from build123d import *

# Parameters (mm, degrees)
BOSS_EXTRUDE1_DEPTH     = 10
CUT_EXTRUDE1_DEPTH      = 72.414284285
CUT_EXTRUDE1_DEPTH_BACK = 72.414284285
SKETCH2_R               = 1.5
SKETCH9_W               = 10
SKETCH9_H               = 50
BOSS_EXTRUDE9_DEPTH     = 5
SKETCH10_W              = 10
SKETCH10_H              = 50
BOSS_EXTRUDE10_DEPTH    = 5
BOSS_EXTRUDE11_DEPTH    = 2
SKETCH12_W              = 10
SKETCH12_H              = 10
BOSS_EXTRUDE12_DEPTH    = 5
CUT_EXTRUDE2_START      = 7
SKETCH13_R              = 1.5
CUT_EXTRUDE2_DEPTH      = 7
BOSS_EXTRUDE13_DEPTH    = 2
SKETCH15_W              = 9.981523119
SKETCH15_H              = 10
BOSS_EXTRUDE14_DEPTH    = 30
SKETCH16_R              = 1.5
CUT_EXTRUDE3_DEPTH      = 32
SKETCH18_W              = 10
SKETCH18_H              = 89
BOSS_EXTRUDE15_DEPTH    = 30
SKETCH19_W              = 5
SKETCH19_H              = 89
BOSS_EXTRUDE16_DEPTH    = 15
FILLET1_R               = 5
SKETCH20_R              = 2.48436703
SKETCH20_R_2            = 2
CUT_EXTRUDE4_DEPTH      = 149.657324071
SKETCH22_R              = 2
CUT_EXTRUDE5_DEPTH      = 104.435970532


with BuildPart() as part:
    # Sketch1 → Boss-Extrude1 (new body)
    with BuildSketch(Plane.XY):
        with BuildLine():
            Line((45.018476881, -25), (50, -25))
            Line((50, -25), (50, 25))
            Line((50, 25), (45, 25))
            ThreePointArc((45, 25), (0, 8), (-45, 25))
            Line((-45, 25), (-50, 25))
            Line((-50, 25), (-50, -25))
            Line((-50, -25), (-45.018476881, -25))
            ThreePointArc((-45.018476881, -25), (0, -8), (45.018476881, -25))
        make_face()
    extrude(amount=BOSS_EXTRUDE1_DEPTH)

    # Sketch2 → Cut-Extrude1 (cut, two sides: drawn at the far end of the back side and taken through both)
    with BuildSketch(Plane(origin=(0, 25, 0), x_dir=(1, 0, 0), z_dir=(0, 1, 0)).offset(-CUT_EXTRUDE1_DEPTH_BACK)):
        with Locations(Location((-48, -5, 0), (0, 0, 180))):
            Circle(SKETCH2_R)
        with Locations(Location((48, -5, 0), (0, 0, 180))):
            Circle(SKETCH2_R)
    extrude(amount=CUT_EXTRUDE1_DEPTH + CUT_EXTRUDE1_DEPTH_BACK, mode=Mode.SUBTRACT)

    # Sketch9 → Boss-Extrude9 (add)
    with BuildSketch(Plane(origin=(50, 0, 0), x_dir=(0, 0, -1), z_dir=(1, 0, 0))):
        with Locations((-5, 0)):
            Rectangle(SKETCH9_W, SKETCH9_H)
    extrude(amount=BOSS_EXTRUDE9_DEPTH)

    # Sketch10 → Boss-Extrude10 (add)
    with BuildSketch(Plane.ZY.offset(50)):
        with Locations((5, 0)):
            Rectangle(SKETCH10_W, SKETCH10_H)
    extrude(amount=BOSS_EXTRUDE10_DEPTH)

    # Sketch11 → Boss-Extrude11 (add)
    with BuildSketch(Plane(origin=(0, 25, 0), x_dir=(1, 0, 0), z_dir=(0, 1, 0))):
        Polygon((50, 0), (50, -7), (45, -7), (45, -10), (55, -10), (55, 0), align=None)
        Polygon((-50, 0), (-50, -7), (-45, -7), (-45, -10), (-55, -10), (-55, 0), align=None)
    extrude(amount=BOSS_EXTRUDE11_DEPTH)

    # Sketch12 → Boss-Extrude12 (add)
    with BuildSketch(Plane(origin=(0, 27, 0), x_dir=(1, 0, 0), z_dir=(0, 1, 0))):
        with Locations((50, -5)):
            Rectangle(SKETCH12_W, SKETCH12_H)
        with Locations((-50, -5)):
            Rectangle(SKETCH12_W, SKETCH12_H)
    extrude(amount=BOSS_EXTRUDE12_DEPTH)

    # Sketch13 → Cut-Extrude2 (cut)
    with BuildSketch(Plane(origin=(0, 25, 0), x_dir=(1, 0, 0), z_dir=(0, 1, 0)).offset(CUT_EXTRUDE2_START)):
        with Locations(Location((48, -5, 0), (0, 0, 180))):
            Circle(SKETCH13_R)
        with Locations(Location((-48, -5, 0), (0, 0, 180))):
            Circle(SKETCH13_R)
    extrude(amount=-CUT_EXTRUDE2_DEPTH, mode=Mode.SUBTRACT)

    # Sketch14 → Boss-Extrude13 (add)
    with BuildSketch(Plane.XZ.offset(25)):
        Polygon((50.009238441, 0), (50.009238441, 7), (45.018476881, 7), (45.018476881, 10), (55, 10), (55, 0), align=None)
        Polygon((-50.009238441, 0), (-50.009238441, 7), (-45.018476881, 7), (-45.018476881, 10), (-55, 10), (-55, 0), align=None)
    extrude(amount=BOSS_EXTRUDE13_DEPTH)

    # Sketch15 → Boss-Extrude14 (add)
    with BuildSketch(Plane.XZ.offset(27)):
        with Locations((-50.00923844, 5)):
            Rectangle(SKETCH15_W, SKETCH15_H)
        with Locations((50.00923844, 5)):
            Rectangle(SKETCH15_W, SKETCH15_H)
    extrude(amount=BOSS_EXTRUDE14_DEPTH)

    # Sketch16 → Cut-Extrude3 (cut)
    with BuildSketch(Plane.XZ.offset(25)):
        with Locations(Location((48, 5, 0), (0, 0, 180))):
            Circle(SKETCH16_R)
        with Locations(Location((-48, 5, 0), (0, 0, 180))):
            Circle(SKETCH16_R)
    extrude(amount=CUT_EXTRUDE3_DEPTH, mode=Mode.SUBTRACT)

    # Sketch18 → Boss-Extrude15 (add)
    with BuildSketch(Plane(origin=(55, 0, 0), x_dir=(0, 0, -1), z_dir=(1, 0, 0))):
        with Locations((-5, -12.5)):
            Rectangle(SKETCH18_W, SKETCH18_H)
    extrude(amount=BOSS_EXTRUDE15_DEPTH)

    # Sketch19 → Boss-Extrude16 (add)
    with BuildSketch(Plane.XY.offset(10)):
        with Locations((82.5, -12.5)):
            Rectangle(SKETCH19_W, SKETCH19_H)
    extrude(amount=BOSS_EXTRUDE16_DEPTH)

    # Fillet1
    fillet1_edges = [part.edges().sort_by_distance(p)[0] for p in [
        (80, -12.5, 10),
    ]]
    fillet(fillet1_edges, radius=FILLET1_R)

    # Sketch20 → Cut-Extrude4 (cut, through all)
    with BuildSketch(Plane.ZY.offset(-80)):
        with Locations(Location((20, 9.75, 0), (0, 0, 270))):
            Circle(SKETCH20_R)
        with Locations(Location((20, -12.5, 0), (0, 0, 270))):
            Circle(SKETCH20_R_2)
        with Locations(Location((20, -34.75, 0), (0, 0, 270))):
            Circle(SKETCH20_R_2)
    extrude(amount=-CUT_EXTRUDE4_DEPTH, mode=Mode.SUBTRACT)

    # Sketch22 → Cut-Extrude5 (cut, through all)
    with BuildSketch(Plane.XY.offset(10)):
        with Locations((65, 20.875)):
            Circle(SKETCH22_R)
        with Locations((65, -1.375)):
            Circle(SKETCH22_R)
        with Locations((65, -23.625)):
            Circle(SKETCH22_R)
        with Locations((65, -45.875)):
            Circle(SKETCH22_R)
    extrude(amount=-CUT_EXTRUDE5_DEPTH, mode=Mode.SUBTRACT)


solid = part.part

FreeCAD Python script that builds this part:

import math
import FreeCAD as App
import Part
import Sketcher
Q = App.Units.Quantity


def edges_at(feature, points):
    """Names of the edges that pass closest to the given points."""
    edges = feature.Shape.Edges
    near = lambda p: min(range(len(edges)), key=lambda i: edges[i].distToShape(Part.Vertex(*p))[0])
    return sorted({f"Edge{near(p) + 1}" for p in points})

doc = App.newDocument("Part")
body = doc.addObject("PartDesign::Body", "Body")

# Sketch on XY plane
sketch1 = doc.addObject("Sketcher::SketchObject", "Sketch")
body.addObject(sketch1)
sketch1.AttachmentSupport = (doc.XY_Plane, [""])
sketch1.MapMode = "FlatFace"
sketch1.addGeometry([
    Part.LineSegment(App.Vector(45, -25, 0), App.Vector(50, -25, 0)),  # 0
    Part.LineSegment(App.Vector(50, -25, 0), App.Vector(50, 25, 0)),  # 1
    Part.LineSegment(App.Vector(50, 25, 0), App.Vector(45, 25, 0)),  # 2
    Part.ArcOfCircle(Part.Circle(App.Vector(0, 76.1, 0), App.Vector(0, 0, 1), 68.1), math.radians(-131), math.radians(-49)),  # 3
    Part.LineSegment(App.Vector(-45, 25, 0), App.Vector(-50, 25, 0)),  # 4
    Part.LineSegment(App.Vector(-50, 25, 0), App.Vector(-50, -25, 0)),  # 5
    Part.LineSegment(App.Vector(-50, -25, 0), App.Vector(-45, -25, 0)),  # 6
    Part.ArcOfCircle(Part.Circle(App.Vector(0, -76.1, 0), App.Vector(0, 0, 1), 68.1), math.radians(49), math.radians(131)),  # 7
], False)
sketch1.addConstraint([
    Sketcher.Constraint("Coincident", 0, 2, 1, 1),
    Sketcher.Constraint("Coincident", 1, 2, 2, 1),
    Sketcher.Constraint("Coincident", 2, 2, 3, 2),
    Sketcher.Constraint("Coincident", 3, 1, 4, 1),
    Sketcher.Constraint("Coincident", 4, 2, 5, 1),
    Sketcher.Constraint("Coincident", 5, 2, 6, 1),
    Sketcher.Constraint("Coincident", 6, 2, 7, 2),
    Sketcher.Constraint("Coincident", 7, 1, 0, 1),
    Sketcher.Constraint("Horizontal", 0),
    Sketcher.Constraint("Vertical", 1),
    Sketcher.Constraint("Horizontal", 2),
    Sketcher.Constraint("Horizontal", 4),
    Sketcher.Constraint("Vertical", 5),
    Sketcher.Constraint("Horizontal", 6),
    Sketcher.Constraint("Symmetric", 0, 2, 4, 2, -1, 1),
    Sketcher.Constraint("Symmetric", 2, 2, 3, 1, -2),
    Sketcher.Constraint("Symmetric", 6, 2, 7, 1, -2),
    Sketcher.Constraint("DistanceX", 2, 2, 2, 1, Q("5 mm")),
    Sketcher.Constraint("DistanceY", 1, 1, 1, 2, Q("50 mm")),
    Sketcher.Constraint("DistanceX", -1, 1, 0, 2, Q("50 mm")),
    Sketcher.Constraint("Radius", 3, Q("68.058824 mm")),
    Sketcher.Constraint("Radius", 7, Q("68.107743 mm")),
    Sketcher.Constraint("DistanceX", 0, 1, 0, 2, Q("4.981523 mm")),
])
pad1 = doc.addObject("PartDesign::Pad", "Pad")
body.addObject(pad1)
pad1.Profile = sketch1
pad1.Length = 10

# Sketch on XZ plane
sketch2 = doc.addObject("Sketcher::SketchObject", "Sketch001")
body.addObject(sketch2)
sketch2.AttachmentSupport = (doc.XZ_Plane, [""])
sketch2.MapMode = "FlatFace"
sketch2.AttachmentOffset = App.Placement(App.Vector(0, 0, -25), App.Rotation())
sketch2.addGeometry([
    Part.Circle(App.Vector(-48, 5, 0), App.Vector(0, 0, 1), 1.5),
    Part.Circle(App.Vector(48, 5, 0), App.Vector(0, 0, 1), 1.5),
], False)
sketch2.addConstraint([
    Sketcher.Constraint("Equal", 0, 1),
    Sketcher.Constraint("Symmetric", 0, 3, 1, 3, -2),
    Sketcher.Constraint("Diameter", 0, Q("3 mm")),
    Sketcher.Constraint("DistanceX", 0, 3, -1, 1, Q("48 mm")),
    Sketcher.Constraint("DistanceY", -1, 1, 0, 3, Q("5 mm")),
])
pocket1 = doc.addObject("PartDesign::Pocket", "Pocket")
body.addObject(pocket1)
pocket1.Profile = sketch2
pocket1.Type = "ThroughAll"
pocket1.Midplane = True

# Sketch on YZ plane
sketch3 = doc.addObject("Sketcher::SketchObject", "Sketch002")
body.addObject(sketch3)
sketch3.AttachmentSupport = (doc.YZ_Plane, [""])
sketch3.MapMode = "FlatFace"
sketch3.AttachmentOffset = App.Placement(App.Vector(0, 0, 50), App.Rotation())
sketch3.addGeometry([
    Part.LineSegment(App.Vector(25, 10, 0), App.Vector(-25, 10, 0)),
    Part.LineSegment(App.Vector(-25, 10, 0), App.Vector(-25, 0, 0)),
    Part.LineSegment(App.Vector(-25, 0, 0), App.Vector(25, 0, 0)),
    Part.LineSegment(App.Vector(25, 0, 0), App.Vector(25, 10, 0)),
], False)
sketch3.addConstraint([
    Sketcher.Constraint("Coincident", 0, 2, 1, 1),
    Sketcher.Constraint("Coincident", 1, 2, 2, 1),
    Sketcher.Constraint("Coincident", 2, 2, 3, 1),
    Sketcher.Constraint("Coincident", 3, 2, 0, 1),
    Sketcher.Constraint("Horizontal", 0),
    Sketcher.Constraint("Vertical", 1),
    Sketcher.Constraint("Horizontal", 2),
    Sketcher.Constraint("Vertical", 3),
    Sketcher.Constraint("Symmetric", 1, 2, 2, 2, -1, 1),
    Sketcher.Constraint("DistanceX", 0, 2, 0, 1, Q("50 mm")),
    Sketcher.Constraint("DistanceY", 1, 2, 1, 1, Q("10 mm")),
])
pad2 = doc.addObject("PartDesign::Pad", "Pad001")
body.addObject(pad2)
pad2.Profile = sketch3
pad2.Length = 5

# Sketch on YZ plane
sketch4 = doc.addObject("Sketcher::SketchObject", "Sketch003")
body.addObject(sketch4)
sketch4.AttachmentSupport = (doc.YZ_Plane, [""])
sketch4.MapMode = "FlatFace"
sketch4.AttachmentOffset = App.Placement(App.Vector(0, 0, -50), App.Rotation())
sketch4.addGeometry([
    Part.LineSegment(App.Vector(25, 0, 0), App.Vector(-25, 0, 0)),
    Part.LineSegment(App.Vector(-25, 0, 0), App.Vector(-25, 10, 0)),
    Part.LineSegment(App.Vector(-25, 10, 0), App.Vector(25, 10, 0)),
    Part.LineSegment(App.Vector(25, 10, 0), App.Vector(25, 0, 0)),
], False)
sketch4.addConstraint([
    Sketcher.Constraint("Coincident", 0, 2, 1, 1),
    Sketcher.Constraint("Coincident", 1, 2, 2, 1),
    Sketcher.Constraint("Coincident", 2, 2, 3, 1),
    Sketcher.Constraint("Coincident", 3, 2, 0, 1),
    Sketcher.Constraint("Horizontal", 0),
    Sketcher.Constraint("Vertical", 1),
    Sketcher.Constraint("Horizontal", 2),
    Sketcher.Constraint("Vertical", 3),
    Sketcher.Constraint("Symmetric", 0, 2, 3, 2, -1, 1),
    Sketcher.Constraint("DistanceX", 0, 2, 0, 1, Q("50 mm")),
    Sketcher.Constraint("DistanceY", 1, 1, 1, 2, Q("10 mm")),
])
pad3 = doc.addObject("PartDesign::Pad", "Pad002")
body.addObject(pad3)
pad3.Profile = sketch4
pad3.Length = 5
pad3.Reversed = True

# Sketch on XZ plane
sketch5 = doc.addObject("Sketcher::SketchObject", "Sketch004")
body.addObject(sketch5)
sketch5.AttachmentSupport = (doc.XZ_Plane, [""])
sketch5.MapMode = "FlatFace"
sketch5.AttachmentOffset = App.Placement(App.Vector(0, 0, -25), App.Rotation())
sketch5.addGeometry([
    Part.LineSegment(App.Vector(50, 0, 0), App.Vector(50, 7, 0)),  # 0
    Part.LineSegment(App.Vector(50, 7, 0), App.Vector(45, 7, 0)),  # 1
    Part.LineSegment(App.Vector(45, 7, 0), App.Vector(45, 10, 0)),  # 2
    Part.LineSegment(App.Vector(45, 10, 0), App.Vector(55, 10, 0)),  # 3
    Part.LineSegment(App.Vector(55, 10, 0), App.Vector(55, 0, 0)),  # 4
    Part.LineSegment(App.Vector(55, 0, 0), App.Vector(50, 0, 0)),  # 5
    Part.LineSegment(App.Vector(-50, 7, 0), App.Vector(-50, 0, 0)),  # 6
    Part.LineSegment(App.Vector(-50, 0, 0), App.Vector(-55, 0, 0)),  # 7
    Part.LineSegment(App.Vector(-55, 0, 0), App.Vector(-55, 10, 0)),  # 8
    Part.LineSegment(App.Vector(-55, 10, 0), App.Vector(-45, 10, 0)),  # 9
    Part.LineSegment(App.Vector(-45, 10, 0), App.Vector(-45, 7, 0)),  # 10
    Part.LineSegment(App.Vector(-45, 7, 0), App.Vector(-50, 7, 0)),  # 11
], False)
sketch5.addConstraint([
    Sketcher.Constraint("Coincident", 0, 2, 1, 1),
    Sketcher.Constraint("Coincident", 1, 2, 2, 1),
    Sketcher.Constraint("Coincident", 2, 2, 3, 1),
    Sketcher.Constraint("Coincident", 3, 2, 4, 1),
    Sketcher.Constraint("Coincident", 4, 2, 5, 1),
    Sketcher.Constraint("Coincident", 5, 2, 0, 1),
    Sketcher.Constraint("Coincident", 6, 2, 7, 1),
    Sketcher.Constraint("Coincident", 7, 2, 8, 1),
    Sketcher.Constraint("Coincident", 8, 2, 9, 1),
    Sketcher.Constraint("Coincident", 9, 2, 10, 1),
    Sketcher.Constraint("Coincident", 10, 2, 11, 1),
    Sketcher.Constraint("Coincident", 11, 2, 6, 1),
    Sketcher.Constraint("Vertical", 0),
    Sketcher.Constraint("Horizontal", 1),
    Sketcher.Constraint("Vertical", 2),
    Sketcher.Constraint("Horizontal", 3),
    Sketcher.Constraint("Vertical", 4),
    Sketcher.Constraint("Horizontal", 5),
    Sketcher.Constraint("Vertical", 6),
    Sketcher.Constraint("Horizontal", 7),
    Sketcher.Constraint("Vertical", 8),
    Sketcher.Constraint("Horizontal", 9),
    Sketcher.Constraint("Vertical", 10),
    Sketcher.Constraint("Horizontal", 11),
    Sketcher.Constraint("Symmetric", 5, 2, 6, 2, -1, 1),
    Sketcher.Constraint("Symmetric", 4, 2, 7, 2, -2),
    Sketcher.Constraint("Symmetric", 2, 2, 9, 2, -2),
    Sketcher.Constraint("Horizontal", 1, 2, 10, 2),
    Sketcher.Constraint("Equal", 1, 5),
    Sketcher.Constraint("Equal", 9, 4),
    Sketcher.Constraint("DistanceX", 1, 2, 1, 1, Q("5 mm")),
    Sketcher.Constraint("DistanceY", 0, 1, 0, 2, Q("7 mm")),
    Sketcher.Constraint("DistanceX", -1, 1, 0, 2, Q("50 mm")),
])
pad4 = doc.addObject("PartDesign::Pad", "Pad003")
body.addObject(pad4)
pad4.Profile = sketch5
pad4.Length = 2
pad4.Reversed = True

# Sketch on XZ plane
sketch6 = doc.addObject("Sketcher::SketchObject", "Sketch005")
body.addObject(sketch6)
sketch6.AttachmentSupport = (doc.XZ_Plane, [""])
sketch6.MapMode = "FlatFace"
sketch6.AttachmentOffset = App.Placement(App.Vector(0, 0, -27), App.Rotation())
sketch6.addGeometry([
    Part.LineSegment(App.Vector(45, 0, 0), App.Vector(45, 10, 0)),  # 0
    Part.LineSegment(App.Vector(45, 10, 0), App.Vector(55, 10, 0)),  # 1
    Part.LineSegment(App.Vector(55, 10, 0), App.Vector(55, 0, 0)),  # 2
    Part.LineSegment(App.Vector(55, 0, 0), App.Vector(45, 0, 0)),  # 3
    Part.LineSegment(App.Vector(-55, 0, 0), App.Vector(-55, 10, 0)),  # 4
    Part.LineSegment(App.Vector(-55, 10, 0), App.Vector(-45, 10, 0)),  # 5
    Part.LineSegment(App.Vector(-45, 10, 0), App.Vector(-45, 0, 0)),  # 6
    Part.LineSegment(App.Vector(-45, 0, 0), App.Vector(-55, 0, 0)),  # 7
], False)
sketch6.addConstraint([
    Sketcher.Constraint("Coincident", 0, 2, 1, 1),
    Sketcher.Constraint("Coincident", 1, 2, 2, 1),
    Sketcher.Constraint("Coincident", 2, 2, 3, 1),
    Sketcher.Constraint("Coincident", 3, 2, 0, 1),
    Sketcher.Constraint("Coincident", 4, 2, 5, 1),
    Sketcher.Constraint("Coincident", 5, 2, 6, 1),
    Sketcher.Constraint("Coincident", 6, 2, 7, 1),
    Sketcher.Constraint("Coincident", 7, 2, 4, 1),
    Sketcher.Constraint("Vertical", 0),
    Sketcher.Constraint("Horizontal", 1),
    Sketcher.Constraint("Vertical", 2),
    Sketcher.Constraint("Horizontal", 3),
    Sketcher.Constraint("Vertical", 4),
    Sketcher.Constraint("Horizontal", 5),
    Sketcher.Constraint("Vertical", 6),
    Sketcher.Constraint("Horizontal", 7),
    Sketcher.Constraint("Symmetric", 3, 2, 6, 2, -1, 1),
    Sketcher.Constraint("Symmetric", 1, 2, 4, 2, -2),
    Sketcher.Constraint("PointOnObject", 2, 2, -1),
    Sketcher.Constraint("Equal", 7, 0),
    Sketcher.Constraint("DistanceX", 1, 1, 1, 2, Q("10 mm")),
    Sketcher.Constraint("DistanceX", -1, 1, 0, 2, Q("45 mm")),
])
pad5 = doc.addObject("PartDesign::Pad", "Pad004")
body.addObject(pad5)
pad5.Profile = sketch6
pad5.Length = 5
pad5.Reversed = True

# Sketch on XZ plane
sketch7 = doc.addObject("Sketcher::SketchObject", "Sketch006")
body.addObject(sketch7)
sketch7.AttachmentSupport = (doc.XZ_Plane, [""])
sketch7.MapMode = "FlatFace"
sketch7.AttachmentOffset = App.Placement(App.Vector(0, 0, -32), App.Rotation())
sketch7.addGeometry([
    Part.Circle(App.Vector(48, 5, 0), App.Vector(0, 0, 1), 1.5),
    Part.Circle(App.Vector(-48, 5, 0), App.Vector(0, 0, 1), 1.5),
], False)
sketch7.addConstraint([
    Sketcher.Constraint("Equal", 0, 1),
    Sketcher.Constraint("Symmetric", 0, 3, 1, 3, -2),
    Sketcher.Constraint("Diameter", 0, Q("3 mm")),
    Sketcher.Constraint("DistanceX", -1, 1, 0, 3, Q("48 mm")),
    Sketcher.Constraint("DistanceY", -1, 1, 0, 3, Q("5 mm")),
])
pocket2 = doc.addObject("PartDesign::Pocket", "Pocket001")
body.addObject(pocket2)
pocket2.Profile = sketch7
pocket2.Length = 7
pocket2.Reversed = True

# Sketch on XZ plane
sketch8 = doc.addObject("Sketcher::SketchObject", "Sketch007")
body.addObject(sketch8)
sketch8.AttachmentSupport = (doc.XZ_Plane, [""])
sketch8.MapMode = "FlatFace"
sketch8.AttachmentOffset = App.Placement(App.Vector(0, 0, 25), App.Rotation())
sketch8.addGeometry([
    Part.LineSegment(App.Vector(50, 7, 0), App.Vector(50, 0, 0)),  # 0
    Part.LineSegment(App.Vector(50, 0, 0), App.Vector(55, 0, 0)),  # 1
    Part.LineSegment(App.Vector(55, 0, 0), App.Vector(55, 10, 0)),  # 2
    Part.LineSegment(App.Vector(55, 10, 0), App.Vector(45, 10, 0)),  # 3
    Part.LineSegment(App.Vector(45, 10, 0), App.Vector(45, 7, 0)),  # 4
    Part.LineSegment(App.Vector(45, 7, 0), App.Vector(50, 7, 0)),  # 5
    Part.LineSegment(App.Vector(-50, 0, 0), App.Vector(-50, 7, 0)),  # 6
    Part.LineSegment(App.Vector(-50, 7, 0), App.Vector(-45, 7, 0)),  # 7
    Part.LineSegment(App.Vector(-45, 7, 0), App.Vector(-45, 10, 0)),  # 8
    Part.LineSegment(App.Vector(-45, 10, 0), App.Vector(-55, 10, 0)),  # 9
    Part.LineSegment(App.Vector(-55, 10, 0), App.Vector(-55, 0, 0)),  # 10
    Part.LineSegment(App.Vector(-55, 0, 0), App.Vector(-50, 0, 0)),  # 11
], False)
sketch8.addConstraint([
    Sketcher.Constraint("Coincident", 0, 2, 1, 1),
    Sketcher.Constraint("Coincident", 1, 2, 2, 1),
    Sketcher.Constraint("Coincident", 2, 2, 3, 1),
    Sketcher.Constraint("Coincident", 3, 2, 4, 1),
    Sketcher.Constraint("Coincident", 4, 2, 5, 1),
    Sketcher.Constraint("Coincident", 5, 2, 0, 1),
    Sketcher.Constraint("Coincident", 6, 2, 7, 1),
    Sketcher.Constraint("Coincident", 7, 2, 8, 1),
    Sketcher.Constraint("Coincident", 8, 2, 9, 1),
    Sketcher.Constraint("Coincident", 9, 2, 10, 1),
    Sketcher.Constraint("Coincident", 10, 2, 11, 1),
    Sketcher.Constraint("Coincident", 11, 2, 6, 1),
    Sketcher.Constraint("Vertical", 0),
    Sketcher.Constraint("Horizontal", 1),
    Sketcher.Constraint("Vertical", 2),
    Sketcher.Constraint("Horizontal", 3),
    Sketcher.Constraint("Vertical", 4),
    Sketcher.Constraint("Horizontal", 5),
    Sketcher.Constraint("Vertical", 6),
    Sketcher.Constraint("Horizontal", 7),
    Sketcher.Constraint("Vertical", 8),
    Sketcher.Constraint("Horizontal", 9),
    Sketcher.Constraint("Vertical", 10),
    Sketcher.Constraint("Horizontal", 11),
    Sketcher.Constraint("Symmetric", 1, 2, 10, 2, -1, 1),
    Sketcher.Constraint("Symmetric", 5, 2, 6, 2, -2),
    Sketcher.Constraint("Symmetric", 3, 2, 8, 2, -2),
    Sketcher.Constraint("PointOnObject", 0, 2, -1),
    Sketcher.Constraint("Equal", 1, 5),
    Sketcher.Constraint("DistanceY", 0, 2, 0, 1, Q("7 mm")),
    Sketcher.Constraint("DistanceY", 2, 1, 2, 2, Q("10 mm")),
    Sketcher.Constraint("DistanceX", -1, 1, 1, 2, Q("55 mm")),
    Sketcher.Constraint("DistanceX", 1, 1, 1, 2, Q("4.990762 mm")),
])
pad6 = doc.addObject("PartDesign::Pad", "Pad005")
body.addObject(pad6)
pad6.Profile = sketch8
pad6.Length = 2

# Sketch on XZ plane
sketch9 = doc.addObject("Sketcher::SketchObject", "Sketch008")
body.addObject(sketch9)
sketch9.AttachmentSupport = (doc.XZ_Plane, [""])
sketch9.MapMode = "FlatFace"
sketch9.AttachmentOffset = App.Placement(App.Vector(0, 0, 27), App.Rotation())
sketch9.addGeometry([
    Part.LineSegment(App.Vector(-55, 10, 0), App.Vector(-55, 0, 0)),  # 0
    Part.LineSegment(App.Vector(-55, 0, 0), App.Vector(-45, 0, 0)),  # 1
    Part.LineSegment(App.Vector(-45, 0, 0), App.Vector(-45, 10, 0)),  # 2
    Part.LineSegment(App.Vector(-45, 10, 0), App.Vector(-55, 10, 0)),  # 3
    Part.LineSegment(App.Vector(45, 10, 0), App.Vector(45, 0, 0)),  # 4
    Part.LineSegment(App.Vector(45, 0, 0), App.Vector(55, 0, 0)),  # 5
    Part.LineSegment(App.Vector(55, 0, 0), App.Vector(55, 10, 0)),  # 6
    Part.LineSegment(App.Vector(55, 10, 0), App.Vector(45, 10, 0)),  # 7
], False)
sketch9.addConstraint([
    Sketcher.Constraint("Coincident", 0, 2, 1, 1),
    Sketcher.Constraint("Coincident", 1, 2, 2, 1),
    Sketcher.Constraint("Coincident", 2, 2, 3, 1),
    Sketcher.Constraint("Coincident", 3, 2, 0, 1),
    Sketcher.Constraint("Coincident", 4, 2, 5, 1),
    Sketcher.Constraint("Coincident", 5, 2, 6, 1),
    Sketcher.Constraint("Coincident", 6, 2, 7, 1),
    Sketcher.Constraint("Coincident", 7, 2, 4, 1),
    Sketcher.Constraint("Vertical", 0),
    Sketcher.Constraint("Horizontal", 1),
    Sketcher.Constraint("Vertical", 2),
    Sketcher.Constraint("Horizontal", 3),
    Sketcher.Constraint("Vertical", 4),
    Sketcher.Constraint("Horizontal", 5),
    Sketcher.Constraint("Vertical", 6),
    Sketcher.Constraint("Horizontal", 7),
    Sketcher.Constraint("Symmetric", 1, 2, 4, 2, -1, 1),
    Sketcher.Constraint("Symmetric", 0, 2, 5, 2, -2),
    Sketcher.Constraint("Horizontal", 3, 2, 6, 2),
    Sketcher.Constraint("DistanceY", 0, 2, 0, 1, Q("10 mm")),
    Sketcher.Constraint("DistanceX", 0, 2, -1, 1, Q("55 mm")),
    Sketcher.Constraint("DistanceX", 1, 1, 1, 2, Q("9.981523 mm")),
])
pad7 = doc.addObject("PartDesign::Pad", "Pad006")
body.addObject(pad7)
pad7.Profile = sketch9
pad7.Length = 30

# Sketch on XZ plane
sketch10 = doc.addObject("Sketcher::SketchObject", "Sketch009")
body.addObject(sketch10)
sketch10.AttachmentSupport = (doc.XZ_Plane, [""])
sketch10.MapMode = "FlatFace"
sketch10.AttachmentOffset = App.Placement(App.Vector(0, 0, 25), App.Rotation())
sketch10.addGeometry([
    Part.Circle(App.Vector(48, 5, 0), App.Vector(0, 0, 1), 1.5),
    Part.Circle(App.Vector(-48, 5, 0), App.Vector(0, 0, 1), 1.5),
], False)
sketch10.addConstraint([
    Sketcher.Constraint("Equal", 0, 1),
    Sketcher.Constraint("Symmetric", 0, 3, 1, 3, -2),
    Sketcher.Constraint("Diameter", 0, Q("3 mm")),
    Sketcher.Constraint("DistanceX", -1, 1, 0, 3, Q("48 mm")),
    Sketcher.Constraint("DistanceY", -1, 1, 0, 3, Q("5 mm")),
])
pocket3 = doc.addObject("PartDesign::Pocket", "Pocket002")
body.addObject(pocket3)
pocket3.Profile = sketch10
pocket3.Length = 32
pocket3.Reversed = True

# Sketch on YZ plane
sketch11 = doc.addObject("Sketcher::SketchObject", "Sketch010")
body.addObject(sketch11)
sketch11.AttachmentSupport = (doc.YZ_Plane, [""])
sketch11.MapMode = "FlatFace"
sketch11.AttachmentOffset = App.Placement(App.Vector(0, 0, 55), App.Rotation())
sketch11.addGeometry([
    Part.LineSegment(App.Vector(32, 10, 0), App.Vector(-57, 10, 0)),
    Part.LineSegment(App.Vector(-57, 10, 0), App.Vector(-57, 0, 0)),
    Part.LineSegment(App.Vector(-57, 0, 0), App.Vector(32, 0, 0)),
    Part.LineSegment(App.Vector(32, 0, 0), App.Vector(32, 10, 0)),
], False)
sketch11.addConstraint([
    Sketcher.Constraint("Coincident", 0, 2, 1, 1),
    Sketcher.Constraint("Coincident", 1, 2, 2, 1),
    Sketcher.Constraint("Coincident", 2, 2, 3, 1),
    Sketcher.Constraint("Coincident", 3, 2, 0, 1),
    Sketcher.Constraint("Horizontal", 0),
    Sketcher.Constraint("Vertical", 1),
    Sketcher.Constraint("Horizontal", 2),
    Sketcher.Constraint("Vertical", 3),
    Sketcher.Constraint("PointOnObject", 1, 2, -1),
    Sketcher.Constraint("DistanceX", 0, 2, 0, 1, Q("89 mm")),
    Sketcher.Constraint("DistanceY", 1, 2, 1, 1, Q("10 mm")),
    Sketcher.Constraint("DistanceX", 0, 2, -1, 1, Q("57 mm")),
])
pad8 = doc.addObject("PartDesign::Pad", "Pad007")
body.addObject(pad8)
pad8.Profile = sketch11
pad8.Length = 30

# Sketch on XY plane
sketch12 = doc.addObject("Sketcher::SketchObject", "Sketch011")
body.addObject(sketch12)
sketch12.AttachmentSupport = (doc.XY_Plane, [""])
sketch12.MapMode = "FlatFace"
sketch12.AttachmentOffset = App.Placement(App.Vector(0, 0, 10), App.Rotation())
sketch12.addGeometry([
    Part.LineSegment(App.Vector(80, 32, 0), App.Vector(80, -57, 0)),
    Part.LineSegment(App.Vector(80, -57, 0), App.Vector(85, -57, 0)),
    Part.LineSegment(App.Vector(85, -57, 0), App.Vector(85, 32, 0)),
    Part.LineSegment(App.Vector(85, 32, 0), App.Vector(80, 32, 0)),
], False)
sketch12.addConstraint([
    Sketcher.Constraint("Coincident", 0, 2, 1, 1),
    Sketcher.Constraint("Coincident", 1, 2, 2, 1),
    Sketcher.Constraint("Coincident", 2, 2, 3, 1),
    Sketcher.Constraint("Coincident", 3, 2, 0, 1),
    Sketcher.Constraint("Vertical", 0),
    Sketcher.Constraint("Horizontal", 1),
    Sketcher.Constraint("Vertical", 2),
    Sketcher.Constraint("Horizontal", 3),
    Sketcher.Constraint("DistanceX", 1, 1, 1, 2, Q("5 mm")),
    Sketcher.Constraint("DistanceY", 0, 2, 0, 1, Q("89 mm")),
    Sketcher.Constraint("DistanceX", -1, 1, 0, 2, Q("80 mm")),
    Sketcher.Constraint("DistanceY", 0, 2, -1, 1, Q("57 mm")),
])
pad9 = doc.addObject("PartDesign::Pad", "Pad008")
body.addObject(pad9)
pad9.Profile = sketch12
pad9.Length = 15
doc.recompute()

fillet = doc.addObject("PartDesign::Fillet", "Fillet")
body.addObject(fillet)
fillet.Base = (pad9, edges_at(pad9, [(80, -12.5, 10)]))
fillet.Radius = 5

# Sketch on YZ plane
sketch13 = doc.addObject("Sketcher::SketchObject", "Sketch012")
body.addObject(sketch13)
sketch13.AttachmentSupport = (doc.YZ_Plane, [""])
sketch13.MapMode = "FlatFace"
sketch13.AttachmentOffset = App.Placement(App.Vector(0, 0, 80), App.Rotation())
sketch13.addGeometry([
    Part.Circle(App.Vector(9.8, 20, 0), App.Vector(0, 0, 1), 2.5),
    Part.Circle(App.Vector(-12.5, 20, 0), App.Vector(0, 0, 1), 2),
    Part.Circle(App.Vector(-34.8, 20, 0), App.Vector(0, 0, 1), 2),
], False)
sketch13.addConstraint([
    Sketcher.Constraint("Equal", 1, 2),
    Sketcher.Constraint("Horizontal", 0, 3, 1, 3),
    Sketcher.Constraint("Horizontal", 1, 3, 2, 3),
    Sketcher.Constraint("Diameter", 1, Q("4 mm")),
    Sketcher.Constraint("DistanceY", -1, 1, 0, 3, Q("20 mm")),
    Sketcher.Constraint("DistanceX", 1, 3, -1, 1, Q("12.5 mm")),
    Sketcher.Constraint("DistanceX", 2, 3, 0, 3, Q("44.5 mm")),
    Sketcher.Constraint("DistanceX", -1, 1, 0, 3, Q("9.75 mm")),
    Sketcher.Constraint("Diameter", 0, Q("4.968734 mm")),
])
pocket4 = doc.addObject("PartDesign::Pocket", "Pocket003")
body.addObject(pocket4)
pocket4.Profile = sketch13
pocket4.Type = "ThroughAll"
pocket4.Reversed = True

# Sketch on XY plane
sketch14 = doc.addObject("Sketcher::SketchObject", "Sketch013")
body.addObject(sketch14)
sketch14.AttachmentSupport = (doc.XY_Plane, [""])
sketch14.MapMode = "FlatFace"
sketch14.AttachmentOffset = App.Placement(App.Vector(0, 0, 10), App.Rotation())
sketch14.addGeometry([
    Part.Circle(App.Vector(65, 20.9, 0), App.Vector(0, 0, 1), 2),
    Part.Circle(App.Vector(65, -1.4, 0), App.Vector(0, 0, 1), 2),
    Part.Circle(App.Vector(65, -23.6, 0), App.Vector(0, 0, 1), 2),
    Part.Circle(App.Vector(65, -45.9, 0), App.Vector(0, 0, 1), 2),
], False)
sketch14.addConstraint([
    Sketcher.Constraint("Equal", 0, 1),
    Sketcher.Constraint("Equal", 1, 2),
    Sketcher.Constraint("Equal", 2, 3),
    Sketcher.Constraint("Vertical", 0, 3, 1, 3),
    Sketcher.Constraint("Vertical", 1, 3, 2, 3),
    Sketcher.Constraint("Vertical", 2, 3, 3, 3),
    Sketcher.Constraint("Diameter", 0, Q("4 mm")),
    Sketcher.Constraint("DistanceX", -1, 1, 0, 3, Q("65 mm")),
    Sketcher.Constraint("DistanceY", 2, 3, 0, 3, Q("44.5 mm")),
    Sketcher.Constraint("DistanceY", 3, 3, 1, 3, Q("44.5 mm")),
    Sketcher.Constraint("DistanceY", 1, 3, 0, 3, Q("22.25 mm")),
    Sketcher.Constraint("DistanceY", -1, 1, 0, 3, Q("20.875 mm")),
])
pocket5 = doc.addObject("PartDesign::Pocket", "Pocket004")
body.addObject(pocket5)
pocket5.Profile = sketch14
pocket5.Type = "ThroughAll"

doc.recompute()
